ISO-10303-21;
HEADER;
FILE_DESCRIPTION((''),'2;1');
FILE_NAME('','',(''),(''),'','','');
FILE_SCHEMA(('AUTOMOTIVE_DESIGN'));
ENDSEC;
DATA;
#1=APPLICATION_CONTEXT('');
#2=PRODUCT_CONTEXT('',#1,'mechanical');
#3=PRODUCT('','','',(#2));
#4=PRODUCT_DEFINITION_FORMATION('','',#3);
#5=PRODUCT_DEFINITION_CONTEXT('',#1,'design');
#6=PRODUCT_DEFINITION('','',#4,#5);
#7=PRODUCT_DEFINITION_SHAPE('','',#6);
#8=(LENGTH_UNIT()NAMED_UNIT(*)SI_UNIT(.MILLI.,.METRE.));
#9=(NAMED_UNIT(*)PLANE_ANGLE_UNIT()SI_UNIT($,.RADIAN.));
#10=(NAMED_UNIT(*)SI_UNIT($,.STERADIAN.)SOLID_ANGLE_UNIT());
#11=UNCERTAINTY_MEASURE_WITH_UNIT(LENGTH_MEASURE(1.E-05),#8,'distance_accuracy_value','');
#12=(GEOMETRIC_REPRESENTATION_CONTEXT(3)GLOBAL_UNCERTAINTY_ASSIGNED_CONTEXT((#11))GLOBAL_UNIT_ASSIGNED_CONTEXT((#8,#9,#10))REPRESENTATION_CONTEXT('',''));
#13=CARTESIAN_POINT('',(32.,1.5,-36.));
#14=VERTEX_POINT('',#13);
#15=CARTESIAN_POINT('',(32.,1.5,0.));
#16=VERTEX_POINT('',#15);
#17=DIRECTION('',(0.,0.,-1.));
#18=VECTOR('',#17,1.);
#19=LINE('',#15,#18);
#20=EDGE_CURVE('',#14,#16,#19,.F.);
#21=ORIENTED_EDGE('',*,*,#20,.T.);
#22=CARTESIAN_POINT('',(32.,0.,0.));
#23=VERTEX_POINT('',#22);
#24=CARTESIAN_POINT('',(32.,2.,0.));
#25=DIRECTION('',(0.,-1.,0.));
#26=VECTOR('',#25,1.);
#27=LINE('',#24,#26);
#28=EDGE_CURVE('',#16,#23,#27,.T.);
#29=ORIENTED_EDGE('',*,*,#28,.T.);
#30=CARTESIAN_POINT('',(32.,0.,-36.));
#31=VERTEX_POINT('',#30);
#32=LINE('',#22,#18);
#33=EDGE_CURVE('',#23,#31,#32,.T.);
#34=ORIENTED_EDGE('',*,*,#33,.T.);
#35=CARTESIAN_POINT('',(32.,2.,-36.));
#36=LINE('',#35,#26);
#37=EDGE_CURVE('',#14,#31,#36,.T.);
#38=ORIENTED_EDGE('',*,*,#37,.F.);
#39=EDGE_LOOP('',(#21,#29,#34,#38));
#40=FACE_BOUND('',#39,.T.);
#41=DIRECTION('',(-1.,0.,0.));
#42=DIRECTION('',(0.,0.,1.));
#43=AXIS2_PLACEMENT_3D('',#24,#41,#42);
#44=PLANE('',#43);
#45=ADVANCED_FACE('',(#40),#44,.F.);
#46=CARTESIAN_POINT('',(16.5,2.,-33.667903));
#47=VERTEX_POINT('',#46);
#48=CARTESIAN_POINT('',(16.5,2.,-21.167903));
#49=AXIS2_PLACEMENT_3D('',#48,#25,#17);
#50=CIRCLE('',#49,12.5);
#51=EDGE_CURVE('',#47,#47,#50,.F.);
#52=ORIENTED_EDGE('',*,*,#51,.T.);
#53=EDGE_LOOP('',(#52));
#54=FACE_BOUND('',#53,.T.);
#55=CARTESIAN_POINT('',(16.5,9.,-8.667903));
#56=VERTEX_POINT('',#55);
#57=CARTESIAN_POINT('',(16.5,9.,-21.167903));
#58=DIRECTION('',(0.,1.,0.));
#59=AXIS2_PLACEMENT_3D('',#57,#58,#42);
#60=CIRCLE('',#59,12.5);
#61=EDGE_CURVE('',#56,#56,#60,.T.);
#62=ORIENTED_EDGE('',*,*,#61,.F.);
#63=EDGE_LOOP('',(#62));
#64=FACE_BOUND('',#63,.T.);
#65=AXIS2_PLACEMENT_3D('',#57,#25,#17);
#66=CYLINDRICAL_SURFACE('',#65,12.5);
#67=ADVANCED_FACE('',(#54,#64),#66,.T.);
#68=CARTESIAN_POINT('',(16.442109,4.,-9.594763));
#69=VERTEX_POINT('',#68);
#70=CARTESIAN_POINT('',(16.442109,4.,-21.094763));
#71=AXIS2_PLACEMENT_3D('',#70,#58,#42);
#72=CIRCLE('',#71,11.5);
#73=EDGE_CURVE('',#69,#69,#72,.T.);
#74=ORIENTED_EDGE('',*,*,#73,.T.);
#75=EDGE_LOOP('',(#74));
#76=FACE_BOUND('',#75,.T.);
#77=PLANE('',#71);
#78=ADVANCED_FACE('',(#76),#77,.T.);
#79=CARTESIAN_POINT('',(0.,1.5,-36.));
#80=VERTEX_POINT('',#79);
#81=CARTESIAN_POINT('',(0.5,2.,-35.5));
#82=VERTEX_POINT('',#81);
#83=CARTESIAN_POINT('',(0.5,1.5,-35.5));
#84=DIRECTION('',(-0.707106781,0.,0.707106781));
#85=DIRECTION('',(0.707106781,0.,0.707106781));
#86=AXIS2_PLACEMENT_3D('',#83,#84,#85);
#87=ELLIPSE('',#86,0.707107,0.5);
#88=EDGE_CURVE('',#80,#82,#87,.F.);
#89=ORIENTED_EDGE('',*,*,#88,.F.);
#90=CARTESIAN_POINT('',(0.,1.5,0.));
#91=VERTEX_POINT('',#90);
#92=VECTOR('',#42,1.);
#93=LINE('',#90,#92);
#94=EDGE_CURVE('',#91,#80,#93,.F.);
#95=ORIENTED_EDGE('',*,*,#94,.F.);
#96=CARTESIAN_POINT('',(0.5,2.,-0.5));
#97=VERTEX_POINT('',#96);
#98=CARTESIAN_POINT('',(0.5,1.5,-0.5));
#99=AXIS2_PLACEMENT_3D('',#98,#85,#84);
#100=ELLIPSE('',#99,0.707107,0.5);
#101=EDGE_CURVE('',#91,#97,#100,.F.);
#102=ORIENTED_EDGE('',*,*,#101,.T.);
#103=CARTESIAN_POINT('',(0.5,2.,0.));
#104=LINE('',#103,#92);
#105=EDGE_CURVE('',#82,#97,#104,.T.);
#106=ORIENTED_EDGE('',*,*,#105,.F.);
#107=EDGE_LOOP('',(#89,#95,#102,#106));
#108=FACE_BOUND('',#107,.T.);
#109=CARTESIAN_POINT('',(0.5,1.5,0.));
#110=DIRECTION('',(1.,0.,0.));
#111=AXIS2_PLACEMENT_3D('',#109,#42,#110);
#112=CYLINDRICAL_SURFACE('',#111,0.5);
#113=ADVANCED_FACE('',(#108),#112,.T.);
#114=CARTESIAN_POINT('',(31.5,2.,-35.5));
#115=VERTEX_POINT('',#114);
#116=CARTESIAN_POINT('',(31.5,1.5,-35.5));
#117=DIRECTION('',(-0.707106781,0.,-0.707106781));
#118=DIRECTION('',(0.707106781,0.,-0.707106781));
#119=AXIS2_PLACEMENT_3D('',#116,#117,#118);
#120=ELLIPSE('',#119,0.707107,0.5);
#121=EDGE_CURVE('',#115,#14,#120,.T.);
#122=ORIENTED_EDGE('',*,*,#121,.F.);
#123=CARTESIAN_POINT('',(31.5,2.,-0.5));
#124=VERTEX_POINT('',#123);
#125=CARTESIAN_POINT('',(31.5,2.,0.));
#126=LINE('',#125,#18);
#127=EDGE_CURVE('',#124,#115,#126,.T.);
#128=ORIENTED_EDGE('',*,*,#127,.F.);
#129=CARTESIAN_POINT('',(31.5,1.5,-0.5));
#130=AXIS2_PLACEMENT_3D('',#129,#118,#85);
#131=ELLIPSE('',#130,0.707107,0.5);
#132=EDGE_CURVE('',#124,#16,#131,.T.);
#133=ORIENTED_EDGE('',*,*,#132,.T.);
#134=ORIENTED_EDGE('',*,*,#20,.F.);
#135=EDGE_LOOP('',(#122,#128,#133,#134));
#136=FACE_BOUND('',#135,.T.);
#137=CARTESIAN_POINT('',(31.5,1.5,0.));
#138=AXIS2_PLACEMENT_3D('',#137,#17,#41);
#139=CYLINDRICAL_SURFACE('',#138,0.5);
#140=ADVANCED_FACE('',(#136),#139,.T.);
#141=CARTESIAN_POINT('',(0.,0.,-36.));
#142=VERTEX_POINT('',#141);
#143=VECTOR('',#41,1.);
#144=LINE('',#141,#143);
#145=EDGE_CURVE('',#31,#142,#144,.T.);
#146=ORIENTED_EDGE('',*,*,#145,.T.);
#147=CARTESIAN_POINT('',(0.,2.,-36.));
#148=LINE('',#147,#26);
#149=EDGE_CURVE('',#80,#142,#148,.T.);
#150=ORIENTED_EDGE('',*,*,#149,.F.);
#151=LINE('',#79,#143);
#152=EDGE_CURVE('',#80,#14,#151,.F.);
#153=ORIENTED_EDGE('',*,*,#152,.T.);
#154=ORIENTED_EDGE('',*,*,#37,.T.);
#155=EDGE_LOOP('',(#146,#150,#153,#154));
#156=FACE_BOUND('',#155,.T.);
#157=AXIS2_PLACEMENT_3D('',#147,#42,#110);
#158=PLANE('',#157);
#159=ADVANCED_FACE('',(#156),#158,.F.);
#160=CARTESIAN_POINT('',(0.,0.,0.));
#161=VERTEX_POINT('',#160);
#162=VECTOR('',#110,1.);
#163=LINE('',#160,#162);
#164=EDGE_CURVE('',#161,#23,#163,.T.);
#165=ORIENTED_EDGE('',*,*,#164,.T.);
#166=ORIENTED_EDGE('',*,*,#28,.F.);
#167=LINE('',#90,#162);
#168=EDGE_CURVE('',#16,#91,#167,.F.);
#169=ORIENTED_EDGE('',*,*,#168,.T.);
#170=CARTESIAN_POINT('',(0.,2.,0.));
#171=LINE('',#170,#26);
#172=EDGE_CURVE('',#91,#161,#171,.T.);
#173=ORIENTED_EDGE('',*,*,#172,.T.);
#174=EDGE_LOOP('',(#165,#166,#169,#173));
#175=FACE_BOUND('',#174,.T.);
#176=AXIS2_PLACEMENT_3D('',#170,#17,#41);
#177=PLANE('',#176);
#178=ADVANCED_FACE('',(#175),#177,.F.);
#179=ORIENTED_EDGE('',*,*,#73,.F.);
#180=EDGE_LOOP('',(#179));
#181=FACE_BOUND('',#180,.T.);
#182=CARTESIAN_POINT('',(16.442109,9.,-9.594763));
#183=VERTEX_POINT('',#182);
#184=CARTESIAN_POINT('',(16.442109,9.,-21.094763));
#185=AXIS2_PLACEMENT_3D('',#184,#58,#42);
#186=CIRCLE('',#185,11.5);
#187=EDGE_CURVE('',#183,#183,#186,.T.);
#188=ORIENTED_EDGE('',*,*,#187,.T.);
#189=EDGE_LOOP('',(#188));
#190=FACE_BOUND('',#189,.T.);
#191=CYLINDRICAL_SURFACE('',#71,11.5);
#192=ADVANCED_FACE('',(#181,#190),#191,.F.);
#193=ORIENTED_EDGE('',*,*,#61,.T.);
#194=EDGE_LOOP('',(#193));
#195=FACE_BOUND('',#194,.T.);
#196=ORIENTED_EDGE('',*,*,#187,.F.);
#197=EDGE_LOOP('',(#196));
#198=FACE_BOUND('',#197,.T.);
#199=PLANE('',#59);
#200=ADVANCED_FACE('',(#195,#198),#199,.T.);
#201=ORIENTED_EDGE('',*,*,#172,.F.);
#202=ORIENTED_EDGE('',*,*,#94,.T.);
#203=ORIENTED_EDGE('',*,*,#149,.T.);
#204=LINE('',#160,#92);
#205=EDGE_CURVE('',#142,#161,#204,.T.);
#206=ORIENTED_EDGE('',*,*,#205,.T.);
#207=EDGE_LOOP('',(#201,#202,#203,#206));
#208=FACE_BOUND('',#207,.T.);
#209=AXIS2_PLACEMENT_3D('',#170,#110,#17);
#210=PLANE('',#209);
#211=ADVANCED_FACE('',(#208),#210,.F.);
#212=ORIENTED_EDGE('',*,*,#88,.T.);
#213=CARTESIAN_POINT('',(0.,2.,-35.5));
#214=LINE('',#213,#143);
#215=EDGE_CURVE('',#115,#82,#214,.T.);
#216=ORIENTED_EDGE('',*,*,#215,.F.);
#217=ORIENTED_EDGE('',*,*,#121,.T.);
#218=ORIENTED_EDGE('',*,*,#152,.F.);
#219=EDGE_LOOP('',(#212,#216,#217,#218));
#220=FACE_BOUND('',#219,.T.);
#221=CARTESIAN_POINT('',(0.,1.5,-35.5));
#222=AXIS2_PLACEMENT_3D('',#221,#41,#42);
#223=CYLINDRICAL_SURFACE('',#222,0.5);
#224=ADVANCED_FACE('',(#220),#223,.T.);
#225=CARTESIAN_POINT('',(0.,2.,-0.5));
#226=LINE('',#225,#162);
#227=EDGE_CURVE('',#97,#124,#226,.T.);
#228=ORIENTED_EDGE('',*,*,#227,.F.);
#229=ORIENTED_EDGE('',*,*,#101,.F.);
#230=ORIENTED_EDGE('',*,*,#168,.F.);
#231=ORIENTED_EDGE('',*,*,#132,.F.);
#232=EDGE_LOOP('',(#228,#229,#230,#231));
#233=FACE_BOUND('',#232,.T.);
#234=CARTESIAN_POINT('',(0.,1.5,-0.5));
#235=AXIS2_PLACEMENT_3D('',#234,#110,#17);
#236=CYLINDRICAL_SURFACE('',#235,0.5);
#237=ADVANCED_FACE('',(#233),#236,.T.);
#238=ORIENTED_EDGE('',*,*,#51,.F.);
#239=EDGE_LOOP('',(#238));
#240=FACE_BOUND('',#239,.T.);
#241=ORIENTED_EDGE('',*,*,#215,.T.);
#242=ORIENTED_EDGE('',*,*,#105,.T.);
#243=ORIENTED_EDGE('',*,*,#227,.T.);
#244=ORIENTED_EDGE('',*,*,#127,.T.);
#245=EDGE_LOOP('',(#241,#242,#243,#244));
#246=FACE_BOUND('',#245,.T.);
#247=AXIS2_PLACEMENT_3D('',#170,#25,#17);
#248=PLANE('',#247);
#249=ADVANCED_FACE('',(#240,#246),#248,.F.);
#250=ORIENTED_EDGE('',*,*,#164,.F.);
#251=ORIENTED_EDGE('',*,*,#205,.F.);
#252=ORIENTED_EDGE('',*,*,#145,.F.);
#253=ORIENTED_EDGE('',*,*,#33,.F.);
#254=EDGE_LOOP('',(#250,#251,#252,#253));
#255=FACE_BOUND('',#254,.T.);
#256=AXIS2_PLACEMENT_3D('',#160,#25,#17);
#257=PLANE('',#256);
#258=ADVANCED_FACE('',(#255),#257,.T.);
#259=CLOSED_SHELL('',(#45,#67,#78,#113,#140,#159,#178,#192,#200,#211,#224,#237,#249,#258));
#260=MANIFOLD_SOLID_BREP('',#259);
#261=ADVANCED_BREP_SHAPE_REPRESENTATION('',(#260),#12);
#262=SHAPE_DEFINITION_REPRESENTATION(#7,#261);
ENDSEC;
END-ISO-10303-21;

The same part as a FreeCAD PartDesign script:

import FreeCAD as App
import Part
import Sketcher
Q = App.Units.Quantity


def edges_at(feature, points):
    """Names of the edges that pass closest to the given points."""
    edges = feature.Shape.Edges
    near = lambda p: min(range(len(edges)), key=lambda i: edges[i].distToShape(Part.Vertex(*p))[0])
    return sorted({f"Edge{near(p) + 1}" for p in points})

doc = App.newDocument("Part")
body = doc.addObject("PartDesign::Body", "Body")

# Sketch on XZ plane
sketch1 = doc.addObject("Sketcher::SketchObject", "Sketch")
body.addObject(sketch1)
sketch1.AttachmentSupport = (doc.XZ_Plane, [""])
sketch1.MapMode = "FlatFace"
sketch1.addGeometry([
    Part.LineSegment(App.Vector(0, -36, 0), App.Vector(0, 0, 0)),
    Part.LineSegment(App.Vector(0, 0, 0), App.Vector(32, 0, 0)),
    Part.LineSegment(App.Vector(32, 0, 0), App.Vector(32, -36, 0)),
    Part.LineSegment(App.Vector(32, -36, 0), App.Vector(0, -36, 0)),
], False)
sketch1.addConstraint([
    Sketcher.Constraint("Coincident", 0, 2, 1, 1),
    Sketcher.Constraint("Coincident", 1, 2, 2, 1),
    Sketcher.Constraint("Coincident", 2, 2, 3, 1),
    Sketcher.Constraint("Coincident", 3, 2, 0, 1),
    Sketcher.Constraint("Vertical", 0),
    Sketcher.Constraint("Horizontal", 1),
    Sketcher.Constraint("Vertical", 2),
    Sketcher.Constraint("Horizontal", 3),
    Sketcher.Constraint("Coincident", 0, 2, -1, 1),
    Sketcher.Constraint("DistanceX", 1, 1, 1, 2, Q("32 mm")),
    Sketcher.Constraint("DistanceY", 0, 1, 0, 2, Q("36 mm")),
])
pad1 = doc.addObject("PartDesign::Pad", "Pad")
body.addObject(pad1)
pad1.Profile = sketch1
pad1.Length = 2
pad1.Reversed = True
doc.recompute()

fillet = doc.addObject("PartDesign::Fillet", "Fillet")
body.addObject(fillet)
fillet.Base = (pad1, edges_at(pad1, [
    (32, 2, -18),
    (16, 2, -36),
    (0, 2, -18),
    (16, 2, 0),
]))
fillet.Radius = 0.5

# Sketch on XZ plane
sketch2 = doc.addObject("Sketcher::SketchObject", "Sketch001")
body.addObject(sketch2)
sketch2.AttachmentSupport = (doc.XZ_Plane, [""])
sketch2.MapMode = "FlatFace"
sketch2.AttachmentOffset = App.Placement(App.Vector(0, 0, -2), App.Rotation())
sketch2.addGeometry(Part.Circle(App.Vector(16.5, -21.167903, 0), App.Vector(0, 0, 1), 12.5), False)
sketch2.addConstraint([
    Sketcher.Constraint("Diameter", 0, Q("25 mm")),
    Sketcher.Constraint("DistanceX", -1, 1, 0, 3, Q("16.5 mm")),
    Sketcher.Constraint("DistanceY", 0, 3, -1, 1, Q("21.167903 mm")),
])
pad2 = doc.addObject("PartDesign::Pad", "Pad001")
body.addObject(pad2)
pad2.Profile = sketch2
pad2.Length = 7
pad2.Reversed = True

# Sketch on XZ plane
sketch3 = doc.addObject("Sketcher::SketchObject", "Sketch002")
body.addObject(sketch3)
sketch3.AttachmentSupport = (doc.XZ_Plane, [""])
sketch3.MapMode = "FlatFace"
sketch3.AttachmentOffset = App.Placement(App.Vector(0, 0, -9), App.Rotation())
sketch3.addGeometry([
    Part.Circle(App.Vector(16.442109, -21.094763, 0), App.Vector(0, 0, 1), 11.5),
    Part.Circle(App.Vector(0, -24.191575, 0), App.Vector(0, 0, 1), 0.070207),
], False)
sketch3.addConstraint([
    Sketcher.Constraint("PointOnObject", 1, 3, -2),
    Sketcher.Constraint("Diameter", 0, Q("23 mm")),
    Sketcher.Constraint("Diameter", 1, Q("0.140414 mm")),
    Sketcher.Constraint("DistanceX", -1, 1, 0, 3, Q("16.442109 mm")),
    Sketcher.Constraint("DistanceY", 1, 3, 0, 3, Q("3.096812 mm")),
    Sketcher.Constraint("DistanceY", 0, 3, -1, 1, Q("21.094763 mm")),
])
pocket1 = doc.addObject("PartDesign::Pocket", "Pocket")
body.addObject(pocket1)
pocket1.Profile = sketch3
pocket1.Length = 5
pocket1.Reversed = True

doc.recompute()
